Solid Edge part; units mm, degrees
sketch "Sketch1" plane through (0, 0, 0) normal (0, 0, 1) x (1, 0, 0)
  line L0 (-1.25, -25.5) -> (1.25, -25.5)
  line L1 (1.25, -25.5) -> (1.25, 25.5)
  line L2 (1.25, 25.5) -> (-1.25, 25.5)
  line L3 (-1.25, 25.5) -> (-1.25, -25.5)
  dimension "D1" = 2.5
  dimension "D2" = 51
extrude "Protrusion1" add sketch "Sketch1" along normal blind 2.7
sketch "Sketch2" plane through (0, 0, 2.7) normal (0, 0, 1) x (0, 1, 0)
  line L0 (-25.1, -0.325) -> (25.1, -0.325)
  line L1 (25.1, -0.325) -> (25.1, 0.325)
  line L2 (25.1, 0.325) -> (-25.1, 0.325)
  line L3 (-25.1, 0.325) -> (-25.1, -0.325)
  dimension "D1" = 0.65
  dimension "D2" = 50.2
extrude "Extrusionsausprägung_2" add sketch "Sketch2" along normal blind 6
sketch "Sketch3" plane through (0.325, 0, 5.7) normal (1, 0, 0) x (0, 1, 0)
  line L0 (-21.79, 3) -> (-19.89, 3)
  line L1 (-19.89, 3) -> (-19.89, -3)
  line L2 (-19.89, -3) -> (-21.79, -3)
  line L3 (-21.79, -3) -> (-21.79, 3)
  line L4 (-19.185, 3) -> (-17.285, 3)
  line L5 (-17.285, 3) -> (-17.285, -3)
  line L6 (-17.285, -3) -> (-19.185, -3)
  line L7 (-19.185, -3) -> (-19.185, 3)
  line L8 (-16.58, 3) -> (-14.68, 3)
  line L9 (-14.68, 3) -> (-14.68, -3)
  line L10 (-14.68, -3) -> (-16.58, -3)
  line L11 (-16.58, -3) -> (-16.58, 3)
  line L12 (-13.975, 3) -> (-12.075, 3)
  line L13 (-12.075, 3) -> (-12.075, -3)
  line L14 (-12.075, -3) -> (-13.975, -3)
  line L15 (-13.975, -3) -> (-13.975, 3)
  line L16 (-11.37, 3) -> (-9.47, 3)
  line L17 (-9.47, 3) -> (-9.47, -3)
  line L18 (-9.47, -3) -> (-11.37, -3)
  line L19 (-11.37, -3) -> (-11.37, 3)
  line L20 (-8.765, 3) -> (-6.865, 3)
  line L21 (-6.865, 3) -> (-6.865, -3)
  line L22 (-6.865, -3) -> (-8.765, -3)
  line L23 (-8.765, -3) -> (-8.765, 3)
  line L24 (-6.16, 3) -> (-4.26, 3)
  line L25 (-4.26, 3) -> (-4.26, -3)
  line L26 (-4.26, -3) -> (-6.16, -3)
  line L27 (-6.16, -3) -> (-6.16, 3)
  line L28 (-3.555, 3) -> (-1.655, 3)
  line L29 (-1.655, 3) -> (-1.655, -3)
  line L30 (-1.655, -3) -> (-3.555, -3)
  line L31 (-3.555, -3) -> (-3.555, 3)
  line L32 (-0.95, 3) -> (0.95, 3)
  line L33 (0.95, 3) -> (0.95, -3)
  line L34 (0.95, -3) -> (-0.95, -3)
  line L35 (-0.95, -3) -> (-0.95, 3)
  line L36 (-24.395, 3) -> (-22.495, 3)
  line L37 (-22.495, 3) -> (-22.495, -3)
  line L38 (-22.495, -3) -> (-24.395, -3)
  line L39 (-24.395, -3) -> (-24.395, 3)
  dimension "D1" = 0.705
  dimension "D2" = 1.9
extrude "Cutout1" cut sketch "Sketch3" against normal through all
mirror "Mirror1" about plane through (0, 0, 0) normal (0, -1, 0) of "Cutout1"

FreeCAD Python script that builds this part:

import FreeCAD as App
import Part
import Sketcher
Q = App.Units.Quantity

doc = App.newDocument("Part")
body = doc.addObject("PartDesign::Body", "Body")

sketch1 = body.newObject("Sketcher::SketchObject", "Sketch")
sketch1.AttachmentSupport = (doc.getObject("XY_Plane"), [""])
sketch1.MapMode = "FlatFace"
sketch1.addGeometry(Part.LineSegment(App.Vector(-1.25, 25.5, 0), App.Vector(-1.25, -25.5, 0)), False)
sketch1.addGeometry(Part.LineSegment(App.Vector(-1.25, -25.5, 0), App.Vector(1.25, -25.5, 0)), False)
sketch1.addGeometry(Part.LineSegment(App.Vector(1.25, -25.5, 0), App.Vector(1.25, 25.5, 0)), False)
sketch1.addGeometry(Part.LineSegment(App.Vector(1.25, 25.5, 0), App.Vector(-1.25, 25.5, 0)), False)
sketch1.addConstraint(Sketcher.Constraint("Coincident", 0, 2, 1, 1))
sketch1.addConstraint(Sketcher.Constraint("Coincident", 1, 2, 2, 1))
sketch1.addConstraint(Sketcher.Constraint("Coincident", 2, 2, 3, 1))
sketch1.addConstraint(Sketcher.Constraint("Coincident", 3, 2, 0, 1))
sketch1.addConstraint(Sketcher.Constraint("Vertical", 0))
sketch1.addConstraint(Sketcher.Constraint("Horizontal", 1))
sketch1.addConstraint(Sketcher.Constraint("Vertical", 2))
sketch1.addConstraint(Sketcher.Constraint("Horizontal", 3))
sketch1.addConstraint(Sketcher.Constraint("Symmetric", 0, 2, 2, 2, -1, 1))
sketch1.addConstraint(Sketcher.Constraint("DistanceY", 0, 2, 0, 1, Q("51 mm")))
sketch1.addConstraint(Sketcher.Constraint("DistanceX", 0, 2, -1, 1, Q("1.25 mm")))
pad1 = body.newObject("PartDesign::Pad", "Pad")
pad1.Profile = sketch1
pad1.Length = 2.7

sketch2 = body.newObject("Sketcher::SketchObject", "Sketch001")
sketch2.AttachmentSupport = (doc.getObject("XY_Plane"), [""])
sketch2.MapMode = "FlatFace"
sketch2.AttachmentOffset = App.Placement(App.Vector(0, 0, 2.7), App.Rotation())
sketch2.addGeometry(Part.LineSegment(App.Vector(-0.325, -25.1, 0), App.Vector(0.325, -25.1, 0)), False)
sketch2.addGeometry(Part.LineSegment(App.Vector(0.325, -25.1, 0), App.Vector(0.325, 25.1, 0)), False)
sketch2.addGeometry(Part.LineSegment(App.Vector(0.325, 25.1, 0), App.Vector(-0.325, 25.1, 0)), False)
sketch2.addGeometry(Part.LineSegment(App.Vector(-0.325, 25.1, 0), App.Vector(-0.325, -25.1, 0)), False)
sketch2.addConstraint(Sketcher.Constraint("Coincident", 0, 2, 1, 1))
sketch2.addConstraint(Sketcher.Constraint("Coincident", 1, 2, 2, 1))
sketch2.addConstraint(Sketcher.Constraint("Coincident", 2, 2, 3, 1))
sketch2.addConstraint(Sketcher.Constraint("Coincident", 3, 2, 0, 1))
sketch2.addConstraint(Sketcher.Constraint("Horizontal", 0))
sketch2.addConstraint(Sketcher.Constraint("Vertical", 1))
sketch2.addConstraint(Sketcher.Constraint("Horizontal", 2))
sketch2.addConstraint(Sketcher.Constraint("Vertical", 3))
sketch2.addConstraint(Sketcher.Constraint("Symmetric", 0, 2, 2, 2, -1, 1))
sketch2.addConstraint(Sketcher.Constraint("DistanceY", 0, 2, -1, 1, Q("25.1 mm")))
sketch2.addConstraint(Sketcher.Constraint("DistanceX", 0, 1, 0, 2, Q("0.65 mm")))
pad2 = body.newObject("PartDesign::Pad", "Pad001")
pad2.Profile = sketch2
pad2.Length = 6

sketch3 = body.newObject("Sketcher::SketchObject", "Sketch002")
sketch3.AttachmentSupport = (doc.getObject("YZ_Plane"), [""])
sketch3.MapMode = "FlatFace"
sketch3.AttachmentOffset = App.Placement(App.Vector(0, 0, 0.325), App.Rotation())
sketch3.addGeometry(Part.LineSegment(App.Vector(-19.89, 8.7, 0), App.Vector(-21.79, 8.7, 0)), False)
sketch3.addGeometry(Part.LineSegment(App.Vector(-21.79, 8.7, 0), App.Vector(-21.79, 2.7, 0)), False)
sketch3.addGeometry(Part.LineSegment(App.Vector(-21.79, 2.7, 0), App.Vector(-19.89, 2.7, 0)), False)
sketch3.addGeometry(Part.LineSegment(App.Vector(-19.89, 2.7, 0), App.Vector(-19.89, 8.7, 0)), False)
sketch3.addGeometry(Part.LineSegment(App.Vector(-17.285, 8.7, 0), App.Vector(-19.185, 8.7, 0)), False)
sketch3.addGeometry(Part.LineSegment(App.Vector(-19.185, 8.7, 0), App.Vector(-19.185, 2.7, 0)), False)
sketch3.addGeometry(Part.LineSegment(App.Vector(-19.185, 2.7, 0), App.Vector(-17.285, 2.7, 0)), False)
sketch3.addGeometry(Part.LineSegment(App.Vector(-17.285, 2.7, 0), App.Vector(-17.285, 8.7, 0)), False)
sketch3.addGeometry(Part.LineSegment(App.Vector(-14.68, 8.7, 0), App.Vector(-16.58, 8.7, 0)), False)
sketch3.addGeometry(Part.LineSegment(App.Vector(-16.58, 8.7, 0), App.Vector(-16.58, 2.7, 0)), False)
sketch3.addGeometry(Part.LineSegment(App.Vector(-16.58, 2.7, 0), App.Vector(-14.68, 2.7, 0)), False)
sketch3.addGeometry(Part.LineSegment(App.Vector(-14.68, 2.7, 0), App.Vector(-14.68, 8.7, 0)), False)
sketch3.addGeometry(Part.LineSegment(App.Vector(-12.075, 8.7, 0), App.Vector(-13.975, 8.7, 0)), False)
sketch3.addGeometry(Part.LineSegment(App.Vector(-13.975, 8.7, 0), App.Vector(-13.975, 2.7, 0)), False)
sketch3.addGeometry(Part.LineSegment(App.Vector(-13.975, 2.7, 0), App.Vector(-12.075, 2.7, 0)), False)
sketch3.addGeometry(Part.LineSegment(App.Vector(-12.075, 2.7, 0), App.Vector(-12.075, 8.7, 0)), False)
sketch3.addGeometry(Part.LineSegment(App.Vector(-9.47, 8.7, 0), App.Vector(-11.37, 8.7, 0)), False)
sketch3.addGeometry(Part.LineSegment(App.Vector(-11.37, 8.7, 0), App.Vector(-11.37, 2.7, 0)), False)
sketch3.addGeometry(Part.LineSegment(App.Vector(-11.37, 2.7, 0), App.Vector(-9.47, 2.7, 0)), False)
sketch3.addGeometry(Part.LineSegment(App.Vector(-9.47, 2.7, 0), App.Vector(-9.47, 8.7, 0)), False)
sketch3.addGeometry(Part.LineSegment(App.Vector(-6.865, 8.7, 0), App.Vector(-8.765, 8.7, 0)), False)
sketch3.addGeometry(Part.LineSegment(App.Vector(-8.765, 8.7, 0), App.Vector(-8.765, 2.7, 0)), False)
sketch3.addGeometry(Part.LineSegment(App.Vector(-8.765, 2.7, 0), App.Vector(-6.865, 2.7, 0)), False)
sketch3.addGeometry(Part.LineSegment(App.Vector(-6.865, 2.7, 0), App.Vector(-6.865, 8.7, 0)), False)
sketch3.addGeometry(Part.LineSegment(App.Vector(-4.26, 8.7, 0), App.Vector(-6.16, 8.7, 0)), False)
sketch3.addGeometry(Part.LineSegment(App.Vector(-6.16, 8.7, 0), App.Vector(-6.16, 2.7, 0)), False)
sketch3.addGeometry(Part.LineSegment(App.Vector(-6.16, 2.7, 0), App.Vector(-4.26, 2.7, 0)), False)
sketch3.addGeometry(Part.LineSegment(App.Vector(-4.26, 2.7, 0), App.Vector(-4.26, 8.7, 0)), False)
sketch3.addGeometry(Part.LineSegment(App.Vector(-1.655, 8.7, 0), App.Vector(-3.555, 8.7, 0)), False)
sketch3.addGeometry(Part.LineSegment(App.Vector(-3.555, 8.7, 0), App.Vector(-3.555, 2.7, 0)), False)
sketch3.addGeometry(Part.LineSegment(App.Vector(-3.555, 2.7, 0), App.Vector(-1.655, 2.7, 0)), False)
sketch3.addGeometry(Part.LineSegment(App.Vector(-1.655, 2.7, 0), App.Vector(-1.655, 8.7, 0)), False)
sketch3.addGeometry(Part.LineSegment(App.Vector(0.95, 8.7, 0), App.Vector(-0.95, 8.7, 0)), False)
sketch3.addGeometry(Part.LineSegment(App.Vector(-0.95, 8.7, 0), App.Vector(-0.95, 2.7, 0)), False)
sketch3.addGeometry(Part.LineSegment(App.Vector(-0.95, 2.7, 0), App.Vector(0.95, 2.7, 0)), False)
sketch3.addGeometry(Part.LineSegment(App.Vector(0.95, 2.7, 0), App.Vector(0.95, 8.7, 0)), False)
sketch3.addGeometry(Part.LineSegment(App.Vector(-22.495, 8.7, 0), App.Vector(-24.395, 8.7, 0)), False)
sketch3.addGeometry(Part.LineSegment(App.Vector(-24.395, 8.7, 0), App.Vector(-24.395, 2.7, 0)), False)
sketch3.addGeometry(Part.LineSegment(App.Vector(-24.395, 2.7, 0), App.Vector(-22.495, 2.7, 0)), False)
sketch3.addGeometry(Part.LineSegment(App.Vector(-22.495, 2.7, 0), App.Vector(-22.495, 8.7, 0)), False)
sketch3.addConstraint(Sketcher.Constraint("Coincident", 0, 2, 1, 1))
sketch3.addConstraint(Sketcher.Constraint("Coincident", 1, 2, 2, 1))
sketch3.addConstraint(Sketcher.Constraint("Coincident", 2, 2, 3, 1))
sketch3.addConstraint(Sketcher.Constraint("Coincident", 3, 2, 0, 1))
sketch3.addConstraint(Sketcher.Constraint("Coincident", 4, 2, 5, 1))
sketch3.addConstraint(Sketcher.Constraint("Coincident", 5, 2, 6, 1))
sketch3.addConstraint(Sketcher.Constraint("Coincident", 6, 2, 7, 1))
sketch3.addConstraint(Sketcher.Constraint("Coincident", 7, 2, 4, 1))
sketch3.addConstraint(Sketcher.Constraint("Coincident", 8, 2, 9, 1))
sketch3.addConstraint(Sketcher.Constraint("Coincident", 9, 2, 10, 1))
sketch3.addConstraint(Sketcher.Constraint("Coincident", 10, 2, 11, 1))
sketch3.addConstraint(Sketcher.Constraint("Coincident", 11, 2, 8, 1))
sketch3.addConstraint(Sketcher.Constraint("Coincident", 12, 2, 13, 1))
sketch3.addConstraint(Sketcher.Constraint("Coincident", 13, 2, 14, 1))
sketch3.addConstraint(Sketcher.Constraint("Coincident", 14, 2, 15, 1))
sketch3.addConstraint(Sketcher.Constraint("Coincident", 15, 2, 12, 1))
sketch3.addConstraint(Sketcher.Constraint("Coincident", 16, 2, 17, 1))
sketch3.addConstraint(Sketcher.Constraint("Coincident", 17, 2, 18, 1))
sketch3.addConstraint(Sketcher.Constraint("Coincident", 18, 2, 19, 1))
sketch3.addConstraint(Sketcher.Constraint("Coincident", 19, 2, 16, 1))
sketch3.addConstraint(Sketcher.Constraint("Coincident", 20, 2, 21, 1))
sketch3.addConstraint(Sketcher.Constraint("Coincident", 21, 2, 22, 1))
sketch3.addConstraint(Sketcher.Constraint("Coincident", 22, 2, 23, 1))
sketch3.addConstraint(Sketcher.Constraint("Coincident", 23, 2, 20, 1))
sketch3.addConstraint(Sketcher.Constraint("Coincident", 24, 2, 25, 1))
sketch3.addConstraint(Sketcher.Constraint("Coincident", 25, 2, 26, 1))
sketch3.addConstraint(Sketcher.Constraint("Coincident", 26, 2, 27, 1))
sketch3.addConstraint(Sketcher.Constraint("Coincident", 27, 2, 24, 1))
sketch3.addConstraint(Sketcher.Constraint("Coincident", 28, 2, 29, 1))
sketch3.addConstraint(Sketcher.Constraint("Coincident", 29, 2, 30, 1))
sketch3.addConstraint(Sketcher.Constraint("Coincident", 30, 2, 31, 1))
sketch3.addConstraint(Sketcher.Constraint("Coincident", 31, 2, 28, 1))
sketch3.addConstraint(Sketcher.Constraint("Coincident", 32, 2, 33, 1))
sketch3.addConstraint(Sketcher.Constraint("Coincident", 33, 2, 34, 1))
sketch3.addConstraint(Sketcher.Constraint("Coincident", 34, 2, 35, 1))
sketch3.addConstraint(Sketcher.Constraint("Coincident", 35, 2, 32, 1))
sketch3.addConstraint(Sketcher.Constraint("Coincident", 36, 2, 37, 1))
sketch3.addConstraint(Sketcher.Constraint("Coincident", 37, 2, 38, 1))
sketch3.addConstraint(Sketcher.Constraint("Coincident", 38, 2, 39, 1))
sketch3.addConstraint(Sketcher.Constraint("Coincident", 39, 2, 36, 1))
sketch3.addConstraint(Sketcher.Constraint("Horizontal", 0))
sketch3.addConstraint(Sketcher.Constraint("Vertical", 1))
sketch3.addConstraint(Sketcher.Constraint("Horizontal", 2))
sketch3.addConstraint(Sketcher.Constraint("Vertical", 3))
sketch3.addConstraint(Sketcher.Constraint("Horizontal", 4))
sketch3.addConstraint(Sketcher.Constraint("Vertical", 5))
sketch3.addConstraint(Sketcher.Constraint("Horizontal", 6))
sketch3.addConstraint(Sketcher.Constraint("Vertical", 7))
sketch3.addConstraint(Sketcher.Constraint("Horizontal", 8))
sketch3.addConstraint(Sketcher.Constraint("Vertical", 9))
sketch3.addConstraint(Sketcher.Constraint("Horizontal", 10))
sketch3.addConstraint(Sketcher.Constraint("Vertical", 11))
sketch3.addConstraint(Sketcher.Constraint("Horizontal", 12))
sketch3.addConstraint(Sketcher.Constraint("Vertical", 13))
sketch3.addConstraint(Sketcher.Constraint("Horizontal", 14))
sketch3.addConstraint(Sketcher.Constraint("Vertical", 15))
sketch3.addConstraint(Sketcher.Constraint("Horizontal", 16))
sketch3.addConstraint(Sketcher.Constraint("Vertical", 17))
sketch3.addConstraint(Sketcher.Constraint("Horizontal", 18))
sketch3.addConstraint(Sketcher.Constraint("Vertical", 19))
sketch3.addConstraint(Sketcher.Constraint("Horizontal", 20))
sketch3.addConstraint(Sketcher.Constraint("Vertical", 21))
sketch3.addConstraint(Sketcher.Constraint("Horizontal", 22))
sketch3.addConstraint(Sketcher.Constraint("Vertical", 23))
sketch3.addConstraint(Sketcher.Constraint("Horizontal", 24))
sketch3.addConstraint(Sketcher.Constraint("Vertical", 25))
sketch3.addConstraint(Sketcher.Constraint("Horizontal", 26))
sketch3.addConstraint(Sketcher.Constraint("Vertical", 27))
sketch3.addConstraint(Sketcher.Constraint("Horizontal", 28))
sketch3.addConstraint(Sketcher.Constraint("Vertical", 29))
sketch3.addConstraint(Sketcher.Constraint("Horizontal", 30))
sketch3.addConstraint(Sketcher.Constraint("Vertical", 31))
sketch3.addConstraint(Sketcher.Constraint("Horizontal", 32))
sketch3.addConstraint(Sketcher.Constraint("Vertical", 33))
sketch3.addConstraint(Sketcher.Constraint("Horizontal", 34))
sketch3.addConstraint(Sketcher.Constraint("Vertical", 35))
sketch3.addConstraint(Sketcher.Constraint("Horizontal", 36))
sketch3.addConstraint(Sketcher.Constraint("Vertical", 37))
sketch3.addConstraint(Sketcher.Constraint("Horizontal", 38))
sketch3.addConstraint(Sketcher.Constraint("Vertical", 39))
sketch3.addConstraint(Sketcher.Constraint("Horizontal", 3, 2, 4, 2))
sketch3.addConstraint(Sketcher.Constraint("Horizontal", 2, 2, 5, 2))
sketch3.addConstraint(Sketcher.Constraint("Horizontal", 7, 2, 8, 2))
sketch3.addConstraint(Sketcher.Constraint("Horizontal", 6, 2, 9, 2))
sketch3.addConstraint(Sketcher.Constraint("Horizontal", 11, 2, 12, 2))
sketch3.addConstraint(Sketcher.Constraint("Horizontal", 10, 2, 13, 2))
sketch3.addConstraint(Sketcher.Constraint("Horizontal", 15, 2, 16, 2))
sketch3.addConstraint(Sketcher.Constraint("Horizontal", 14, 2, 17, 2))
sketch3.addConstraint(Sketcher.Constraint("Horizontal", 19, 2, 20, 2))
sketch3.addConstraint(Sketcher.Constraint("Horizontal", 18, 2, 21, 2))
sketch3.addConstraint(Sketcher.Constraint("Horizontal", 23, 2, 24, 2))
sketch3.addConstraint(Sketcher.Constraint("Horizontal", 22, 2, 25, 2))
sketch3.addConstraint(Sketcher.Constraint("Horizontal", 27, 2, 28, 2))
sketch3.addConstraint(Sketcher.Constraint("Horizontal", 26, 2, 29, 2))
sketch3.addConstraint(Sketcher.Constraint("Horizontal", 31, 2, 32, 2))
sketch3.addConstraint(Sketcher.Constraint("Horizontal", 30, 2, 33, 2))
sketch3.addConstraint(Sketcher.Constraint("Horizontal", 35, 2, 36, 2))
sketch3.addConstraint(Sketcher.Constraint("Horizontal", 34, 2, 37, 2))
sketch3.addConstraint(Sketcher.Constraint("Equal", 2, 4))
sketch3.addConstraint(Sketcher.Constraint("Equal", 6, 8))
sketch3.addConstraint(Sketcher.Constraint("Equal", 10, 12))
sketch3.addConstraint(Sketcher.Constraint("Equal", 14, 16))
sketch3.addConstraint(Sketcher.Constraint("Equal", 18, 20))
sketch3.addConstraint(Sketcher.Constraint("Equal", 22, 24))
sketch3.addConstraint(Sketcher.Constraint("Equal", 26, 28))
sketch3.addConstraint(Sketcher.Constraint("Equal", 30, 32))
sketch3.addConstraint(Sketcher.Constraint("Equal", 34, 36))
sketch3.addConstraint(Sketcher.Constraint("DistanceY", 1, 2, 1, 1, Q("6 mm")))
sketch3.addConstraint(Sketcher.Constraint("DistanceX", 0, 2, 0, 1, Q("1.9 mm")))
sketch3.addConstraint(Sketcher.Constraint("DistanceX", 36, 2, -1, 1, Q("24.395 mm")))
sketch3.addConstraint(Sketcher.Constraint("DistanceY", -1, 1, 0, 2, Q("8.7 mm")))
sketch3.addConstraint(Sketcher.Constraint("DistanceX", 0, 2, -1, 1, Q("21.79 mm")))
sketch3.addConstraint(Sketcher.Constraint("DistanceX", 8, 2, -1, 1, Q("16.58 mm")))
sketch3.addConstraint(Sketcher.Constraint("DistanceX", 16, 2, -1, 1, Q("11.37 mm")))
sketch3.addConstraint(Sketcher.Constraint("DistanceX", 24, 2, -1, 1, Q("6.16 mm")))
sketch3.addConstraint(Sketcher.Constraint("DistanceX", 32, 2, -1, 1, Q("0.95 mm")))
sketch3.addConstraint(Sketcher.Constraint("DistanceX", 7, 2, 12, 2, Q("3.31 mm")))
sketch3.addConstraint(Sketcher.Constraint("DistanceX", 15, 2, 20, 2, Q("3.31 mm")))
sketch3.addConstraint(Sketcher.Constraint("DistanceX", 23, 2, 28, 2, Q("3.31 mm")))
sketch3.addConstraint(Sketcher.Constraint("DistanceX", 36, 2, 4, 2, Q("5.21 mm")))
pocket1 = body.newObject("PartDesign::Pocket", "Pocket")
pocket1.Profile = sketch3
pocket1.Type = "ThroughAll"
doc.recompute()

mirrored = body.newObject("PartDesign::Mirrored", "Mirrored")
mirrored.Originals = [pocket1]
mirrored.MirrorPlane = (doc.getObject("XZ_Plane"), [""])
body.Tip = mirrored

doc.recompute()
